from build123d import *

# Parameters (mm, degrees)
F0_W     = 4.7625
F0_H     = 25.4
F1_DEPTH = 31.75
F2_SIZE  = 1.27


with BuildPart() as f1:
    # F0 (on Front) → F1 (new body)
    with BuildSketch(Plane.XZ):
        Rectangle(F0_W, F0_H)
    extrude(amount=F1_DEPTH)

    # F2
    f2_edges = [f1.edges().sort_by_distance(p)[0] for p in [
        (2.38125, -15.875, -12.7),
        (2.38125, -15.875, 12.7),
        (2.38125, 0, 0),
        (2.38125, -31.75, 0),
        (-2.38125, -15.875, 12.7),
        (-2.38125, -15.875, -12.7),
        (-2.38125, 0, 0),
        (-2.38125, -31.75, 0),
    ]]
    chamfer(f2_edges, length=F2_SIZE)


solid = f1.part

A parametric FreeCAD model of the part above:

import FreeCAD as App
import Part
import Sketcher
Q = App.Units.Quantity


def edges_at(feature, points):
    """Names of the edges that pass closest to the given points."""
    edges = feature.Shape.Edges
    near = lambda p: min(range(len(edges)), key=lambda i: edges[i].distToShape(Part.Vertex(*p))[0])
    return sorted({f"Edge{near(p) + 1}" for p in points})

doc = App.newDocument("Part")
body = doc.addObject("PartDesign::Body", "Body")

# Sketch on XZ plane
sketch1 = doc.addObject("Sketcher::SketchObject", "Sketch")
body.addObject(sketch1)
sketch1.AttachmentSupport = (doc.XZ_Plane, [""])
sketch1.MapMode = "FlatFace"
sketch1.addGeometry(Part.LineSegment(App.Vector(-2.4, 12.7, 0), App.Vector(-2.4, -12.7, 0)), False)
sketch1.addGeometry(Part.LineSegment(App.Vector(-2.4, -12.7, 0), App.Vector(2.4, -12.7, 0)), False)
sketch1.addGeometry(Part.LineSegment(App.Vector(2.4, -12.7, 0), App.Vector(2.4, 12.7, 0)), False)
sketch1.addGeometry(Part.LineSegment(App.Vector(2.4, 12.7, 0), App.Vector(-2.4, 12.7, 0)), False)
sketch1.addConstraint(Sketcher.Constraint("Coincident", 0, 2, 1, 1))
sketch1.addConstraint(Sketcher.Constraint("Coincident", 1, 2, 2, 1))
sketch1.addConstraint(Sketcher.Constraint("Coincident", 2, 2, 3, 1))
sketch1.addConstraint(Sketcher.Constraint("Coincident", 3, 2, 0, 1))
sketch1.addConstraint(Sketcher.Constraint("Vertical", 0))
sketch1.addConstraint(Sketcher.Constraint("Horizontal", 1))
sketch1.addConstraint(Sketcher.Constraint("Vertical", 2))
sketch1.addConstraint(Sketcher.Constraint("Horizontal", 3))
sketch1.addConstraint(Sketcher.Constraint("Symmetric", 0, 2, 2, 2, -1, 1))
sketch1.addConstraint(Sketcher.Constraint("DistanceY", 0, 2, 0, 1, Q("1 in")))
sketch1.addConstraint(Sketcher.Constraint("DistanceX", 1, 1, 1, 2, Q("0.1875 in")))
pad1 = doc.addObject("PartDesign::Pad", "Pad")
body.addObject(pad1)
pad1.Profile = sketch1
pad1.Length = Q("1.25 in")
doc.recompute()

chamfer = doc.addObject("PartDesign::Chamfer", "Chamfer")
body.addObject(chamfer)
chamfer.Base = (pad1, edges_at(pad1, [
    (2.381, -15.875, -12.7),
    (2.381, -15.875, 12.7),
    (2.381, 0, 0),
    (2.381, -31.75, 0),
    (-2.381, -15.875, 12.7),
    (-2.381, -15.875, -12.7),
    (-2.381, 0, 0),
    (-2.381, -31.75, 0),
]))
chamfer.Size = Q("0.05 in")

doc.recompute()
